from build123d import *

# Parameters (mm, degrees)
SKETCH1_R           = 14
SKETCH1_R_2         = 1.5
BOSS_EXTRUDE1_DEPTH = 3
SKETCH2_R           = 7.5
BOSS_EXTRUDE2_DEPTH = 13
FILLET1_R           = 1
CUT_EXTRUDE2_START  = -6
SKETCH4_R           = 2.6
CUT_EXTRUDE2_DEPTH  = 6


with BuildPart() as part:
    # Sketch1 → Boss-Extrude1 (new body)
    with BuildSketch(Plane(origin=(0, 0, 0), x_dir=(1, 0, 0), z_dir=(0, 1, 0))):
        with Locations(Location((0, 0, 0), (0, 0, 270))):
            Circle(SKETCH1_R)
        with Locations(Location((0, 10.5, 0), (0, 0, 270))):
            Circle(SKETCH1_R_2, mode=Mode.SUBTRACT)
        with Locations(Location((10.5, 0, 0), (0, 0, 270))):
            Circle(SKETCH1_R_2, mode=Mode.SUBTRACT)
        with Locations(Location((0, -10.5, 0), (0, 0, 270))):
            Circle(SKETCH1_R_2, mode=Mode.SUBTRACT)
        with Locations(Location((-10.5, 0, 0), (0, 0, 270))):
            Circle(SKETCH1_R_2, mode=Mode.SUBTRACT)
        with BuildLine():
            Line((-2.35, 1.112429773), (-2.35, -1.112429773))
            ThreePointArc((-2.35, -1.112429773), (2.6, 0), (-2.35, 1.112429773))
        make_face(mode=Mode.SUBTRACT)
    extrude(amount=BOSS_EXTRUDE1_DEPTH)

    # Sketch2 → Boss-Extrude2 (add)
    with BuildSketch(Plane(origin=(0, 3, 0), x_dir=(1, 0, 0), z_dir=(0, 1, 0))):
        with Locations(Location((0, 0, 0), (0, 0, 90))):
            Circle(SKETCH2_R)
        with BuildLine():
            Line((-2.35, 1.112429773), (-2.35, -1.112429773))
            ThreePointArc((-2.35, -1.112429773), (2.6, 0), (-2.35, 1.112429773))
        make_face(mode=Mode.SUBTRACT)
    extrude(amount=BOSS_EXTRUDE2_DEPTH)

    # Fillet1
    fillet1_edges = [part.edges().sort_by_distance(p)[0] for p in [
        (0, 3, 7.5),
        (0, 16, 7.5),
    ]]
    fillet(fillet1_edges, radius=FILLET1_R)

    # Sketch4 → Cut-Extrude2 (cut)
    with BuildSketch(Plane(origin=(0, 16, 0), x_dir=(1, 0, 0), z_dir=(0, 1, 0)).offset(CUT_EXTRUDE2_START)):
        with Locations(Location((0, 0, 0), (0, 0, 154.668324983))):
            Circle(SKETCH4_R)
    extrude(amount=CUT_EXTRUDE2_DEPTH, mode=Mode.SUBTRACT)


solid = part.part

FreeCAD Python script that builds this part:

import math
import FreeCAD as App
import Part
import Sketcher


def edges_at(feature, points):
    """Names of the edges that pass closest to the given points."""
    edges = feature.Shape.Edges
    near = lambda p: min(range(len(edges)), key=lambda i: edges[i].distToShape(Part.Vertex(*p))[0])
    return sorted({f"Edge{near(p) + 1}" for p in points})

doc = App.newDocument("Part")
body = doc.addObject("PartDesign::Body", "Body")

sketch1 = body.newObject("Sketcher::SketchObject", "Sketch")
sketch1.AttachmentSupport = (doc.getObject("XZ_Plane"), [""])
sketch1.MapMode = "FlatFace"
sketch1.addGeometry(Part.Circle(App.Vector(0, 0, 0), App.Vector(0, 0, 1), 14), False)
sketch1.addGeometry(Part.Circle(App.Vector(0, -10.5, 0), App.Vector(0, 0, 1), 1.5), False)
sketch1.addGeometry(Part.Circle(App.Vector(-10.5, 0, 0), App.Vector(0, 0, 1), 1.5), False)
sketch1.addGeometry(Part.LineSegment(App.Vector(-2.4, 1.1, 0), App.Vector(-2.4, -1.1, 0)), False)
sketch1.addGeometry(Part.ArcOfCircle(Part.Circle(App.Vector(0, 0, 0), App.Vector(0, 0, 1), 2.6), math.radians(-155), math.radians(155)), False)
sketch1.addGeometry(Part.Circle(App.Vector(10.5, 0, 0), App.Vector(0, 0, 1), 1.5), False)
sketch1.addGeometry(Part.Circle(App.Vector(0, 10.5, 0), App.Vector(0, 0, 1), 1.5), False)
sketch1.addConstraint(Sketcher.Constraint("Coincident", 3, 1, 4, 2))
sketch1.addConstraint(Sketcher.Constraint("Coincident", 4, 1, 3, 2))
sketch1.addConstraint(Sketcher.Constraint("Vertical", 3))
sketch1.addConstraint(Sketcher.Constraint("Coincident", 0, 3, -1, 1))
sketch1.addConstraint(Sketcher.Constraint("Coincident", 4, 3, -1, 1))
sketch1.addConstraint(Sketcher.Constraint("Equal", 1, 2))
sketch1.addConstraint(Sketcher.Constraint("Equal", 2, 5))
sketch1.addConstraint(Sketcher.Constraint("Equal", 5, 6))
sketch1.addConstraint(Sketcher.Constraint("Symmetric", 2, 3, 5, 3, -1, 1))
sketch1.addConstraint(Sketcher.Constraint("Symmetric", 1, 3, 6, 3, -1, 1))
sketch1.addConstraint(Sketcher.Constraint("PointOnObject", 1, 3, -2))
sketch1.addConstraint(Sketcher.Constraint("PointOnObject", 2, 3, -1))
sketch1.addConstraint(Sketcher.Constraint("Diameter", 0, 28.0))
sketch1.addConstraint(Sketcher.Constraint("Diameter", 1, 3.0))
sketch1.addConstraint(Sketcher.Constraint("Radius", 4, 2.6))
sketch1.addConstraint(Sketcher.Constraint("DistanceX", 2, 3, 5, 3, 21.0))
sketch1.addConstraint(Sketcher.Constraint("DistanceY", 1, 3, 6, 3, 21.0))
sketch1.addConstraint(Sketcher.Constraint("DistanceX", 3, 1, -1, 1, 2.35))
pad1 = body.newObject("PartDesign::Pad", "Pad")
pad1.Profile = sketch1
pad1.Length = 3
pad1.Reversed = True

sketch2 = body.newObject("Sketcher::SketchObject", "Sketch001")
sketch2.AttachmentSupport = (doc.getObject("XZ_Plane"), [""])
sketch2.MapMode = "FlatFace"
sketch2.AttachmentOffset = App.Placement(App.Vector(0, 0, -3), App.Rotation())
sketch2.addGeometry(Part.Circle(App.Vector(0, 0, 0), App.Vector(0, 0, 1), 7.5), False)
sketch2.addGeometry(Part.LineSegment(App.Vector(-2.4, 1.1, 0), App.Vector(-2.4, -1.1, 0)), False)
sketch2.addGeometry(Part.ArcOfCircle(Part.Circle(App.Vector(0, 0, 0), App.Vector(0, 0, 1), 2.6), math.radians(-155), math.radians(155)), False)
sketch2.addConstraint(Sketcher.Constraint("Coincident", 1, 1, 2, 2))
sketch2.addConstraint(Sketcher.Constraint("Coincident", 2, 1, 1, 2))
sketch2.addConstraint(Sketcher.Constraint("Vertical", 1))
sketch2.addConstraint(Sketcher.Constraint("Coincident", 0, 3, -1, 1))
sketch2.addConstraint(Sketcher.Constraint("Coincident", 2, 3, -1, 1))
sketch2.addConstraint(Sketcher.Constraint("Diameter", 0, 15.0))
sketch2.addConstraint(Sketcher.Constraint("Radius", 2, 2.6))
sketch2.addConstraint(Sketcher.Constraint("DistanceX", 1, 1, -1, 1, 2.35))
pad2 = body.newObject("PartDesign::Pad", "Pad001")
pad2.Profile = sketch2
pad2.Length = 13
pad2.Reversed = True
doc.recompute()

fillet = body.newObject("PartDesign::Fillet", "Fillet")
fillet.Base = (pad2, edges_at(pad2, [(0, 3, 7.5), (0, 16, 7.5)]))
fillet.Radius = 1

sketch3 = body.newObject("Sketcher::SketchObject", "Sketch002")
sketch3.AttachmentSupport = (doc.getObject("XZ_Plane"), [""])
sketch3.MapMode = "FlatFace"
sketch3.AttachmentOffset = App.Placement(App.Vector(0, 0, -10), App.Rotation())
sketch3.addGeometry(Part.Circle(App.Vector(0, 0, 0), App.Vector(0, 0, 1), 2.6), False)
sketch3.addConstraint(Sketcher.Constraint("Coincident", 0, 3, -1, 1))
sketch3.addConstraint(Sketcher.Constraint("Diameter", 0, 5.2))
pocket1 = body.newObject("PartDesign::Pocket", "Pocket")
pocket1.Profile = sketch3
pocket1.Length = 6

doc.recompute()
